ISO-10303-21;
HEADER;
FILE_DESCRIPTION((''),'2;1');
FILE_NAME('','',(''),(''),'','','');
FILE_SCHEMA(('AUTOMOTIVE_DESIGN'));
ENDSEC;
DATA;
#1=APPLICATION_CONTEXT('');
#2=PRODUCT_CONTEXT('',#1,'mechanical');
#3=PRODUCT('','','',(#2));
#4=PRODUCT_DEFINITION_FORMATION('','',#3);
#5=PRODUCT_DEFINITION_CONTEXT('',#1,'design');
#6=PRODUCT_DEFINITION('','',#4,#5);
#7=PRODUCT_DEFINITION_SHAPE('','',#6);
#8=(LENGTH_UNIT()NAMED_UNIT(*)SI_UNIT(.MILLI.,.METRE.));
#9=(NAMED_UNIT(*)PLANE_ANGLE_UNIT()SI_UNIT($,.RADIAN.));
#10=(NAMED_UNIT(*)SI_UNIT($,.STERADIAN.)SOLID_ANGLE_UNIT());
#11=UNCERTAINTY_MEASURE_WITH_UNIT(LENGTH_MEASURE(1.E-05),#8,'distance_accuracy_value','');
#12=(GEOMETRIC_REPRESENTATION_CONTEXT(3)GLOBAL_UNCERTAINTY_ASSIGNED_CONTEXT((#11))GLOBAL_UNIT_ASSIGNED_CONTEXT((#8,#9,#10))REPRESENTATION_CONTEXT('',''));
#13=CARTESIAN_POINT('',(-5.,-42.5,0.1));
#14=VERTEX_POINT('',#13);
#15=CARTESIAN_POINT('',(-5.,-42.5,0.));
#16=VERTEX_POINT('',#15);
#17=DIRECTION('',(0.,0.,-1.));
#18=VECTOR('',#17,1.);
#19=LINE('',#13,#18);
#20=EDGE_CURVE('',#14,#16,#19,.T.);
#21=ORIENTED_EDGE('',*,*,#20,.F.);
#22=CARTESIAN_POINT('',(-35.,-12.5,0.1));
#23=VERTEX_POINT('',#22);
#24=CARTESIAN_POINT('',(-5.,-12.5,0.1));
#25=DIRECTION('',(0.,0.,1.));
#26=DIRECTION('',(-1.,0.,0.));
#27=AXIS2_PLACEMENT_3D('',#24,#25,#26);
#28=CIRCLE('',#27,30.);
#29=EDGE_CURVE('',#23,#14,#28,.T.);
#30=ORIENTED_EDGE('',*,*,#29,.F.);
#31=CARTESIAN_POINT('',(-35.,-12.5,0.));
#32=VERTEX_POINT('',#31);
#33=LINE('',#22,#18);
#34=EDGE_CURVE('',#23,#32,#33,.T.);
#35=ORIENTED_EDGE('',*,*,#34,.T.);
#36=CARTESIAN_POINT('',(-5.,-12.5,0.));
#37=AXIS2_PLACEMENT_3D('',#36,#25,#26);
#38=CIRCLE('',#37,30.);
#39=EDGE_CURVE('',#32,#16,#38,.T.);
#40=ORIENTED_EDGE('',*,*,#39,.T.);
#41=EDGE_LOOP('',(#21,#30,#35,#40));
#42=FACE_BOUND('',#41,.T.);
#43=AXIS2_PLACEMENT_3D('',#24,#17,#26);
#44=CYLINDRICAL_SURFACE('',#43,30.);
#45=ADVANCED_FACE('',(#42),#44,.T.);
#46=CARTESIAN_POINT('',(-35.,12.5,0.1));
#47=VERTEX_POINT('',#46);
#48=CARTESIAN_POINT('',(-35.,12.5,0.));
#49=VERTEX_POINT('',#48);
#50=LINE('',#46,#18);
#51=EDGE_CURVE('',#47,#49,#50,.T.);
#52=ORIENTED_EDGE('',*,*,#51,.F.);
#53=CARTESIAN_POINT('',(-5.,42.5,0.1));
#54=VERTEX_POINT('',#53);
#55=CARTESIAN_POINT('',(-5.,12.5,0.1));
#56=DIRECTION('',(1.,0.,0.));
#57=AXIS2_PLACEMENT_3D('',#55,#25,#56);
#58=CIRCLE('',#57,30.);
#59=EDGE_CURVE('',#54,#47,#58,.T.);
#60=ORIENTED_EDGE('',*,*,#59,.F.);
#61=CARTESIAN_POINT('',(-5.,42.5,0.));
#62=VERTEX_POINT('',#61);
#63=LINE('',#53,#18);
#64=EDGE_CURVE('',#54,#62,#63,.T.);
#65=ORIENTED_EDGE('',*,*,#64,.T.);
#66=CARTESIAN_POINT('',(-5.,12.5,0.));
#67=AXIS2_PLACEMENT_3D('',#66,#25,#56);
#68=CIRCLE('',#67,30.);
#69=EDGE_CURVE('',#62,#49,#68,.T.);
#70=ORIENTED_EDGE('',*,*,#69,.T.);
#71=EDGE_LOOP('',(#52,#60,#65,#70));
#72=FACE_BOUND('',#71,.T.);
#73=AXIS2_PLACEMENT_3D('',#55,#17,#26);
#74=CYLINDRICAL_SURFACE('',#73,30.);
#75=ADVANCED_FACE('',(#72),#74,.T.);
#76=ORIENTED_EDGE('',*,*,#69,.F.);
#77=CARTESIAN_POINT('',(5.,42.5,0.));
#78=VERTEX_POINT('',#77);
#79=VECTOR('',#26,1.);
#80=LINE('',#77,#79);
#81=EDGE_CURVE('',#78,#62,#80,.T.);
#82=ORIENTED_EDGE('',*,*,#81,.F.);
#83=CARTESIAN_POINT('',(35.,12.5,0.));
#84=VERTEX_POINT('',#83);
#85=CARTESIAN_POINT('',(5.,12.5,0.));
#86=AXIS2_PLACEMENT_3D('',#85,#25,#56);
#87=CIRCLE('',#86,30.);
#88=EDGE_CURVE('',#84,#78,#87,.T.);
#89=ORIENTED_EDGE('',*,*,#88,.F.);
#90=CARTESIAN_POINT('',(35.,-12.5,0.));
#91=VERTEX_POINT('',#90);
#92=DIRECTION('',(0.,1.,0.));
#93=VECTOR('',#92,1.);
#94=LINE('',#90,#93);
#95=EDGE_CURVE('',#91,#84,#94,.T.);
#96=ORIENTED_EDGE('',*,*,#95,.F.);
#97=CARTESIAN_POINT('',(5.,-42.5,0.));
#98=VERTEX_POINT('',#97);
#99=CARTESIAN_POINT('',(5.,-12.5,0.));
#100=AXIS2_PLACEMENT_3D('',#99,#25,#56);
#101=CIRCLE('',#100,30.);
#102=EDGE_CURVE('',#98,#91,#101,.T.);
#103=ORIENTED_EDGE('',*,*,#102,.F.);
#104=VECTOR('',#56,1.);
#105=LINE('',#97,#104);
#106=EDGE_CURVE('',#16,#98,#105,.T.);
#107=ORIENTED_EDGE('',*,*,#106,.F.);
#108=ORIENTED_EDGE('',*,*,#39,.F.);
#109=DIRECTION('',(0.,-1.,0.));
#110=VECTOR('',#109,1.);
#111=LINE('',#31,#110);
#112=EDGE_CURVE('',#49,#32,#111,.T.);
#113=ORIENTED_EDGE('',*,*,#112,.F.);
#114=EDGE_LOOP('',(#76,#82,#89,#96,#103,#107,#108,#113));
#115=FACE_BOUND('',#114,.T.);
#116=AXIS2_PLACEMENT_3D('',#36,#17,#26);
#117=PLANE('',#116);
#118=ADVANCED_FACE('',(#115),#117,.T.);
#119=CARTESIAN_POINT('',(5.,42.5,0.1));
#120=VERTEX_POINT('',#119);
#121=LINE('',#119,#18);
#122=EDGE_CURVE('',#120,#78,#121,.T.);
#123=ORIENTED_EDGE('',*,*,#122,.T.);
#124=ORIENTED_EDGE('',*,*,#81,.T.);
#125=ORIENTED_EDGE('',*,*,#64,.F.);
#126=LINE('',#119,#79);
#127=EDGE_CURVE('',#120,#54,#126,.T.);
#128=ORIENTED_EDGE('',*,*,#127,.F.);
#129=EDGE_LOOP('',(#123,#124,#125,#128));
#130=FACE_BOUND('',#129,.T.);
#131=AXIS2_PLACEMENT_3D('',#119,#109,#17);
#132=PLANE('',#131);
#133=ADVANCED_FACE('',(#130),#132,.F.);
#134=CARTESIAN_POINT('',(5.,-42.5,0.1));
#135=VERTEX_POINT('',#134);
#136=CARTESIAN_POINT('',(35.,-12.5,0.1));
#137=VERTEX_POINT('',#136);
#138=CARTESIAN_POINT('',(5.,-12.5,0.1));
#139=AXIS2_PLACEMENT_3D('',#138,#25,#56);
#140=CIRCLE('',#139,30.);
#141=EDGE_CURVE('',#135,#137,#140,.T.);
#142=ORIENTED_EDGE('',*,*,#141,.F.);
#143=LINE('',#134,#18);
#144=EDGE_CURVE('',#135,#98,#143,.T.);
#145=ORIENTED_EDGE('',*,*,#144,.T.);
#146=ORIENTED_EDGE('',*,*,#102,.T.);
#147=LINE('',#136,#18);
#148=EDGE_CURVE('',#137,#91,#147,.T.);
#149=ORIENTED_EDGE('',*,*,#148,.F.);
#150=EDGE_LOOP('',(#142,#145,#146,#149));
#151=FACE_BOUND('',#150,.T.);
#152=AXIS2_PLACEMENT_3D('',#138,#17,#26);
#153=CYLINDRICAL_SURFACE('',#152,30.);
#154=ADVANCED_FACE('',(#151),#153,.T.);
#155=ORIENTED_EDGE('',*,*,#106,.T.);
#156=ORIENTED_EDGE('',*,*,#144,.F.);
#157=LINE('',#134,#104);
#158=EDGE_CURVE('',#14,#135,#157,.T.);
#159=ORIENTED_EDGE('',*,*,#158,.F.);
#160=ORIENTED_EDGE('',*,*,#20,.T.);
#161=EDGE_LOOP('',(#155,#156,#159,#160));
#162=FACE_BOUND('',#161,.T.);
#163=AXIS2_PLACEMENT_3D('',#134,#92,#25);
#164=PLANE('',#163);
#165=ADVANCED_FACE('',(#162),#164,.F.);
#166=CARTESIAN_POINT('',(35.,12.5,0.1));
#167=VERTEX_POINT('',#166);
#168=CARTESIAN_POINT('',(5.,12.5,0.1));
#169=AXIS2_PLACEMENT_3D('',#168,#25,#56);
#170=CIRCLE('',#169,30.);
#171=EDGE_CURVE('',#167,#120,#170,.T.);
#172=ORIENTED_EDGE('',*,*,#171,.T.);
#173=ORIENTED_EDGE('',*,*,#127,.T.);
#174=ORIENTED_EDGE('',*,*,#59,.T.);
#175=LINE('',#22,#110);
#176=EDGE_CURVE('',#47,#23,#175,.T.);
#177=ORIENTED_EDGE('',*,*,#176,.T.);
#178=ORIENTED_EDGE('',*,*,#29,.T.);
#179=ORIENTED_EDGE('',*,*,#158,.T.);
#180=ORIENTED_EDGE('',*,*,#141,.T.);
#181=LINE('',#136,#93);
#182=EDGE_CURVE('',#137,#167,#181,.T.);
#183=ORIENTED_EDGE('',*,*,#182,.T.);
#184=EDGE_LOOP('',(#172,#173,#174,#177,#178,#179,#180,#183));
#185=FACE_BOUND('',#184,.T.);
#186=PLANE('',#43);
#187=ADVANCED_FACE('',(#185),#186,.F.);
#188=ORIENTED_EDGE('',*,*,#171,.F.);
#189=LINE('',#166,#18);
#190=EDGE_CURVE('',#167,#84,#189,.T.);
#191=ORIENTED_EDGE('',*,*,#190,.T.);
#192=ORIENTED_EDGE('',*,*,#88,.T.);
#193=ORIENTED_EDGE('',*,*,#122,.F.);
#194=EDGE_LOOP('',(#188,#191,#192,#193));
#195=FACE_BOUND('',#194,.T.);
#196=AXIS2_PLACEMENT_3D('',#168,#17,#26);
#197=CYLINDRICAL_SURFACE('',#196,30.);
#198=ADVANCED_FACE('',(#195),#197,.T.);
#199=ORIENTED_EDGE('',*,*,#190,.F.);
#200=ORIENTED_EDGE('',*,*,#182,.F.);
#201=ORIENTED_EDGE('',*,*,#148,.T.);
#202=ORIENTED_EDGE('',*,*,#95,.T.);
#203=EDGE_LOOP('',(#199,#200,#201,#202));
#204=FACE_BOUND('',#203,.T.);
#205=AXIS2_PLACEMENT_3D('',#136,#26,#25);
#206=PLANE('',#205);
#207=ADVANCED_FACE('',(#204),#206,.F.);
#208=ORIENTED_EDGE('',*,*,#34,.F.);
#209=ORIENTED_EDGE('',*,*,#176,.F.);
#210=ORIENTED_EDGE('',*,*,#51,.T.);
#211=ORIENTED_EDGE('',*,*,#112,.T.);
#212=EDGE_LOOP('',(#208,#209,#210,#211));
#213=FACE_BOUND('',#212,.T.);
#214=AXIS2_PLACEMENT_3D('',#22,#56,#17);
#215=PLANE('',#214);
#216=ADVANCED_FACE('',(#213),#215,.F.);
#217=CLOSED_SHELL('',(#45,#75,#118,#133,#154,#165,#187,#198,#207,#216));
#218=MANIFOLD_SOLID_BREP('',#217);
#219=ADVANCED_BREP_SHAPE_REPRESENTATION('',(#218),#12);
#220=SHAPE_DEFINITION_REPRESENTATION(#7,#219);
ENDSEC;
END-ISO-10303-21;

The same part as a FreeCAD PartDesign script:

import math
import FreeCAD as App
import Part
import Sketcher
from FreeCAD import Vector
Q = App.Units.Quantity

doc = App.newDocument("Part")
body = doc.addObject("PartDesign::Body", "Body")

# Sketch on XY plane
sketch1 = body.newObject("Sketcher::SketchObject", "Sketch")
sketch1.AttachmentSupport = (doc.getObject("XY_Plane"), [""])
sketch1.MapMode = "FlatFace"
sketch1.addGeometry([
    Part.LineSegment(Vector(-5, -42.5, 0), Vector(5, -42.5, 0)),  # 0
    Part.ArcOfCircle(Part.Circle(Vector(5, -12.5, 0), Vector(0, 0, 1), 30), math.radians(-90), math.radians(0)),  # 1
    Part.LineSegment(Vector(35, -12.5, 0), Vector(35, 12.5, 0)),  # 2
    Part.ArcOfCircle(Part.Circle(Vector(5, 12.5, 0), Vector(0, 0, 1), 30), math.radians(0), math.radians(90)),  # 3
    Part.LineSegment(Vector(5, 42.5, 0), Vector(-5, 42.5, 0)),  # 4
    Part.ArcOfCircle(Part.Circle(Vector(-5, 12.5, 0), Vector(0, 0, 1), 30), math.radians(90), math.radians(180)),  # 5
    Part.LineSegment(Vector(-35, 12.5, 0), Vector(-35, -12.5, 0)),  # 6
    Part.ArcOfCircle(Part.Circle(Vector(-5, -12.5, 0), Vector(0, 0, 1), 30), math.radians(180), math.radians(270)),  # 7
], False)
sketch1.addConstraint([
    Sketcher.Constraint("Tangent", 0, 2, 1, 1),
    Sketcher.Constraint("Tangent", 1, 2, 2, 1),
    Sketcher.Constraint("Tangent", 2, 2, 3, 1),
    Sketcher.Constraint("Tangent", 3, 2, 4, 1),
    Sketcher.Constraint("Tangent", 4, 2, 5, 1),
    Sketcher.Constraint("Tangent", 5, 2, 6, 1),
    Sketcher.Constraint("Tangent", 6, 2, 7, 1),
    Sketcher.Constraint("Tangent", 7, 2, 0, 1),
    Sketcher.Constraint("Horizontal", 0),
    Sketcher.Constraint("Vertical", 2),
    Sketcher.Constraint("Horizontal", 4),
    Sketcher.Constraint("Vertical", 6),
    Sketcher.Constraint("Equal", 1, 3),
    Sketcher.Constraint("Equal", 3, 5),
    Sketcher.Constraint("Equal", 5, 7),
    Sketcher.Constraint("Symmetric", 1, 3, 5, 3, -1, 1),
    Sketcher.Constraint("Radius", 1, Q("30 mm")),
    Sketcher.Constraint("DistanceX", 0, 1, 0, 2, Q("10 mm")),
    Sketcher.Constraint("DistanceY", 2, 1, 2, 2, Q("25 mm")),
])
pad1 = body.newObject("PartDesign::Pad", "Pad")
pad1.Profile = sketch1
pad1.Length = 0.1

doc.recompute()
